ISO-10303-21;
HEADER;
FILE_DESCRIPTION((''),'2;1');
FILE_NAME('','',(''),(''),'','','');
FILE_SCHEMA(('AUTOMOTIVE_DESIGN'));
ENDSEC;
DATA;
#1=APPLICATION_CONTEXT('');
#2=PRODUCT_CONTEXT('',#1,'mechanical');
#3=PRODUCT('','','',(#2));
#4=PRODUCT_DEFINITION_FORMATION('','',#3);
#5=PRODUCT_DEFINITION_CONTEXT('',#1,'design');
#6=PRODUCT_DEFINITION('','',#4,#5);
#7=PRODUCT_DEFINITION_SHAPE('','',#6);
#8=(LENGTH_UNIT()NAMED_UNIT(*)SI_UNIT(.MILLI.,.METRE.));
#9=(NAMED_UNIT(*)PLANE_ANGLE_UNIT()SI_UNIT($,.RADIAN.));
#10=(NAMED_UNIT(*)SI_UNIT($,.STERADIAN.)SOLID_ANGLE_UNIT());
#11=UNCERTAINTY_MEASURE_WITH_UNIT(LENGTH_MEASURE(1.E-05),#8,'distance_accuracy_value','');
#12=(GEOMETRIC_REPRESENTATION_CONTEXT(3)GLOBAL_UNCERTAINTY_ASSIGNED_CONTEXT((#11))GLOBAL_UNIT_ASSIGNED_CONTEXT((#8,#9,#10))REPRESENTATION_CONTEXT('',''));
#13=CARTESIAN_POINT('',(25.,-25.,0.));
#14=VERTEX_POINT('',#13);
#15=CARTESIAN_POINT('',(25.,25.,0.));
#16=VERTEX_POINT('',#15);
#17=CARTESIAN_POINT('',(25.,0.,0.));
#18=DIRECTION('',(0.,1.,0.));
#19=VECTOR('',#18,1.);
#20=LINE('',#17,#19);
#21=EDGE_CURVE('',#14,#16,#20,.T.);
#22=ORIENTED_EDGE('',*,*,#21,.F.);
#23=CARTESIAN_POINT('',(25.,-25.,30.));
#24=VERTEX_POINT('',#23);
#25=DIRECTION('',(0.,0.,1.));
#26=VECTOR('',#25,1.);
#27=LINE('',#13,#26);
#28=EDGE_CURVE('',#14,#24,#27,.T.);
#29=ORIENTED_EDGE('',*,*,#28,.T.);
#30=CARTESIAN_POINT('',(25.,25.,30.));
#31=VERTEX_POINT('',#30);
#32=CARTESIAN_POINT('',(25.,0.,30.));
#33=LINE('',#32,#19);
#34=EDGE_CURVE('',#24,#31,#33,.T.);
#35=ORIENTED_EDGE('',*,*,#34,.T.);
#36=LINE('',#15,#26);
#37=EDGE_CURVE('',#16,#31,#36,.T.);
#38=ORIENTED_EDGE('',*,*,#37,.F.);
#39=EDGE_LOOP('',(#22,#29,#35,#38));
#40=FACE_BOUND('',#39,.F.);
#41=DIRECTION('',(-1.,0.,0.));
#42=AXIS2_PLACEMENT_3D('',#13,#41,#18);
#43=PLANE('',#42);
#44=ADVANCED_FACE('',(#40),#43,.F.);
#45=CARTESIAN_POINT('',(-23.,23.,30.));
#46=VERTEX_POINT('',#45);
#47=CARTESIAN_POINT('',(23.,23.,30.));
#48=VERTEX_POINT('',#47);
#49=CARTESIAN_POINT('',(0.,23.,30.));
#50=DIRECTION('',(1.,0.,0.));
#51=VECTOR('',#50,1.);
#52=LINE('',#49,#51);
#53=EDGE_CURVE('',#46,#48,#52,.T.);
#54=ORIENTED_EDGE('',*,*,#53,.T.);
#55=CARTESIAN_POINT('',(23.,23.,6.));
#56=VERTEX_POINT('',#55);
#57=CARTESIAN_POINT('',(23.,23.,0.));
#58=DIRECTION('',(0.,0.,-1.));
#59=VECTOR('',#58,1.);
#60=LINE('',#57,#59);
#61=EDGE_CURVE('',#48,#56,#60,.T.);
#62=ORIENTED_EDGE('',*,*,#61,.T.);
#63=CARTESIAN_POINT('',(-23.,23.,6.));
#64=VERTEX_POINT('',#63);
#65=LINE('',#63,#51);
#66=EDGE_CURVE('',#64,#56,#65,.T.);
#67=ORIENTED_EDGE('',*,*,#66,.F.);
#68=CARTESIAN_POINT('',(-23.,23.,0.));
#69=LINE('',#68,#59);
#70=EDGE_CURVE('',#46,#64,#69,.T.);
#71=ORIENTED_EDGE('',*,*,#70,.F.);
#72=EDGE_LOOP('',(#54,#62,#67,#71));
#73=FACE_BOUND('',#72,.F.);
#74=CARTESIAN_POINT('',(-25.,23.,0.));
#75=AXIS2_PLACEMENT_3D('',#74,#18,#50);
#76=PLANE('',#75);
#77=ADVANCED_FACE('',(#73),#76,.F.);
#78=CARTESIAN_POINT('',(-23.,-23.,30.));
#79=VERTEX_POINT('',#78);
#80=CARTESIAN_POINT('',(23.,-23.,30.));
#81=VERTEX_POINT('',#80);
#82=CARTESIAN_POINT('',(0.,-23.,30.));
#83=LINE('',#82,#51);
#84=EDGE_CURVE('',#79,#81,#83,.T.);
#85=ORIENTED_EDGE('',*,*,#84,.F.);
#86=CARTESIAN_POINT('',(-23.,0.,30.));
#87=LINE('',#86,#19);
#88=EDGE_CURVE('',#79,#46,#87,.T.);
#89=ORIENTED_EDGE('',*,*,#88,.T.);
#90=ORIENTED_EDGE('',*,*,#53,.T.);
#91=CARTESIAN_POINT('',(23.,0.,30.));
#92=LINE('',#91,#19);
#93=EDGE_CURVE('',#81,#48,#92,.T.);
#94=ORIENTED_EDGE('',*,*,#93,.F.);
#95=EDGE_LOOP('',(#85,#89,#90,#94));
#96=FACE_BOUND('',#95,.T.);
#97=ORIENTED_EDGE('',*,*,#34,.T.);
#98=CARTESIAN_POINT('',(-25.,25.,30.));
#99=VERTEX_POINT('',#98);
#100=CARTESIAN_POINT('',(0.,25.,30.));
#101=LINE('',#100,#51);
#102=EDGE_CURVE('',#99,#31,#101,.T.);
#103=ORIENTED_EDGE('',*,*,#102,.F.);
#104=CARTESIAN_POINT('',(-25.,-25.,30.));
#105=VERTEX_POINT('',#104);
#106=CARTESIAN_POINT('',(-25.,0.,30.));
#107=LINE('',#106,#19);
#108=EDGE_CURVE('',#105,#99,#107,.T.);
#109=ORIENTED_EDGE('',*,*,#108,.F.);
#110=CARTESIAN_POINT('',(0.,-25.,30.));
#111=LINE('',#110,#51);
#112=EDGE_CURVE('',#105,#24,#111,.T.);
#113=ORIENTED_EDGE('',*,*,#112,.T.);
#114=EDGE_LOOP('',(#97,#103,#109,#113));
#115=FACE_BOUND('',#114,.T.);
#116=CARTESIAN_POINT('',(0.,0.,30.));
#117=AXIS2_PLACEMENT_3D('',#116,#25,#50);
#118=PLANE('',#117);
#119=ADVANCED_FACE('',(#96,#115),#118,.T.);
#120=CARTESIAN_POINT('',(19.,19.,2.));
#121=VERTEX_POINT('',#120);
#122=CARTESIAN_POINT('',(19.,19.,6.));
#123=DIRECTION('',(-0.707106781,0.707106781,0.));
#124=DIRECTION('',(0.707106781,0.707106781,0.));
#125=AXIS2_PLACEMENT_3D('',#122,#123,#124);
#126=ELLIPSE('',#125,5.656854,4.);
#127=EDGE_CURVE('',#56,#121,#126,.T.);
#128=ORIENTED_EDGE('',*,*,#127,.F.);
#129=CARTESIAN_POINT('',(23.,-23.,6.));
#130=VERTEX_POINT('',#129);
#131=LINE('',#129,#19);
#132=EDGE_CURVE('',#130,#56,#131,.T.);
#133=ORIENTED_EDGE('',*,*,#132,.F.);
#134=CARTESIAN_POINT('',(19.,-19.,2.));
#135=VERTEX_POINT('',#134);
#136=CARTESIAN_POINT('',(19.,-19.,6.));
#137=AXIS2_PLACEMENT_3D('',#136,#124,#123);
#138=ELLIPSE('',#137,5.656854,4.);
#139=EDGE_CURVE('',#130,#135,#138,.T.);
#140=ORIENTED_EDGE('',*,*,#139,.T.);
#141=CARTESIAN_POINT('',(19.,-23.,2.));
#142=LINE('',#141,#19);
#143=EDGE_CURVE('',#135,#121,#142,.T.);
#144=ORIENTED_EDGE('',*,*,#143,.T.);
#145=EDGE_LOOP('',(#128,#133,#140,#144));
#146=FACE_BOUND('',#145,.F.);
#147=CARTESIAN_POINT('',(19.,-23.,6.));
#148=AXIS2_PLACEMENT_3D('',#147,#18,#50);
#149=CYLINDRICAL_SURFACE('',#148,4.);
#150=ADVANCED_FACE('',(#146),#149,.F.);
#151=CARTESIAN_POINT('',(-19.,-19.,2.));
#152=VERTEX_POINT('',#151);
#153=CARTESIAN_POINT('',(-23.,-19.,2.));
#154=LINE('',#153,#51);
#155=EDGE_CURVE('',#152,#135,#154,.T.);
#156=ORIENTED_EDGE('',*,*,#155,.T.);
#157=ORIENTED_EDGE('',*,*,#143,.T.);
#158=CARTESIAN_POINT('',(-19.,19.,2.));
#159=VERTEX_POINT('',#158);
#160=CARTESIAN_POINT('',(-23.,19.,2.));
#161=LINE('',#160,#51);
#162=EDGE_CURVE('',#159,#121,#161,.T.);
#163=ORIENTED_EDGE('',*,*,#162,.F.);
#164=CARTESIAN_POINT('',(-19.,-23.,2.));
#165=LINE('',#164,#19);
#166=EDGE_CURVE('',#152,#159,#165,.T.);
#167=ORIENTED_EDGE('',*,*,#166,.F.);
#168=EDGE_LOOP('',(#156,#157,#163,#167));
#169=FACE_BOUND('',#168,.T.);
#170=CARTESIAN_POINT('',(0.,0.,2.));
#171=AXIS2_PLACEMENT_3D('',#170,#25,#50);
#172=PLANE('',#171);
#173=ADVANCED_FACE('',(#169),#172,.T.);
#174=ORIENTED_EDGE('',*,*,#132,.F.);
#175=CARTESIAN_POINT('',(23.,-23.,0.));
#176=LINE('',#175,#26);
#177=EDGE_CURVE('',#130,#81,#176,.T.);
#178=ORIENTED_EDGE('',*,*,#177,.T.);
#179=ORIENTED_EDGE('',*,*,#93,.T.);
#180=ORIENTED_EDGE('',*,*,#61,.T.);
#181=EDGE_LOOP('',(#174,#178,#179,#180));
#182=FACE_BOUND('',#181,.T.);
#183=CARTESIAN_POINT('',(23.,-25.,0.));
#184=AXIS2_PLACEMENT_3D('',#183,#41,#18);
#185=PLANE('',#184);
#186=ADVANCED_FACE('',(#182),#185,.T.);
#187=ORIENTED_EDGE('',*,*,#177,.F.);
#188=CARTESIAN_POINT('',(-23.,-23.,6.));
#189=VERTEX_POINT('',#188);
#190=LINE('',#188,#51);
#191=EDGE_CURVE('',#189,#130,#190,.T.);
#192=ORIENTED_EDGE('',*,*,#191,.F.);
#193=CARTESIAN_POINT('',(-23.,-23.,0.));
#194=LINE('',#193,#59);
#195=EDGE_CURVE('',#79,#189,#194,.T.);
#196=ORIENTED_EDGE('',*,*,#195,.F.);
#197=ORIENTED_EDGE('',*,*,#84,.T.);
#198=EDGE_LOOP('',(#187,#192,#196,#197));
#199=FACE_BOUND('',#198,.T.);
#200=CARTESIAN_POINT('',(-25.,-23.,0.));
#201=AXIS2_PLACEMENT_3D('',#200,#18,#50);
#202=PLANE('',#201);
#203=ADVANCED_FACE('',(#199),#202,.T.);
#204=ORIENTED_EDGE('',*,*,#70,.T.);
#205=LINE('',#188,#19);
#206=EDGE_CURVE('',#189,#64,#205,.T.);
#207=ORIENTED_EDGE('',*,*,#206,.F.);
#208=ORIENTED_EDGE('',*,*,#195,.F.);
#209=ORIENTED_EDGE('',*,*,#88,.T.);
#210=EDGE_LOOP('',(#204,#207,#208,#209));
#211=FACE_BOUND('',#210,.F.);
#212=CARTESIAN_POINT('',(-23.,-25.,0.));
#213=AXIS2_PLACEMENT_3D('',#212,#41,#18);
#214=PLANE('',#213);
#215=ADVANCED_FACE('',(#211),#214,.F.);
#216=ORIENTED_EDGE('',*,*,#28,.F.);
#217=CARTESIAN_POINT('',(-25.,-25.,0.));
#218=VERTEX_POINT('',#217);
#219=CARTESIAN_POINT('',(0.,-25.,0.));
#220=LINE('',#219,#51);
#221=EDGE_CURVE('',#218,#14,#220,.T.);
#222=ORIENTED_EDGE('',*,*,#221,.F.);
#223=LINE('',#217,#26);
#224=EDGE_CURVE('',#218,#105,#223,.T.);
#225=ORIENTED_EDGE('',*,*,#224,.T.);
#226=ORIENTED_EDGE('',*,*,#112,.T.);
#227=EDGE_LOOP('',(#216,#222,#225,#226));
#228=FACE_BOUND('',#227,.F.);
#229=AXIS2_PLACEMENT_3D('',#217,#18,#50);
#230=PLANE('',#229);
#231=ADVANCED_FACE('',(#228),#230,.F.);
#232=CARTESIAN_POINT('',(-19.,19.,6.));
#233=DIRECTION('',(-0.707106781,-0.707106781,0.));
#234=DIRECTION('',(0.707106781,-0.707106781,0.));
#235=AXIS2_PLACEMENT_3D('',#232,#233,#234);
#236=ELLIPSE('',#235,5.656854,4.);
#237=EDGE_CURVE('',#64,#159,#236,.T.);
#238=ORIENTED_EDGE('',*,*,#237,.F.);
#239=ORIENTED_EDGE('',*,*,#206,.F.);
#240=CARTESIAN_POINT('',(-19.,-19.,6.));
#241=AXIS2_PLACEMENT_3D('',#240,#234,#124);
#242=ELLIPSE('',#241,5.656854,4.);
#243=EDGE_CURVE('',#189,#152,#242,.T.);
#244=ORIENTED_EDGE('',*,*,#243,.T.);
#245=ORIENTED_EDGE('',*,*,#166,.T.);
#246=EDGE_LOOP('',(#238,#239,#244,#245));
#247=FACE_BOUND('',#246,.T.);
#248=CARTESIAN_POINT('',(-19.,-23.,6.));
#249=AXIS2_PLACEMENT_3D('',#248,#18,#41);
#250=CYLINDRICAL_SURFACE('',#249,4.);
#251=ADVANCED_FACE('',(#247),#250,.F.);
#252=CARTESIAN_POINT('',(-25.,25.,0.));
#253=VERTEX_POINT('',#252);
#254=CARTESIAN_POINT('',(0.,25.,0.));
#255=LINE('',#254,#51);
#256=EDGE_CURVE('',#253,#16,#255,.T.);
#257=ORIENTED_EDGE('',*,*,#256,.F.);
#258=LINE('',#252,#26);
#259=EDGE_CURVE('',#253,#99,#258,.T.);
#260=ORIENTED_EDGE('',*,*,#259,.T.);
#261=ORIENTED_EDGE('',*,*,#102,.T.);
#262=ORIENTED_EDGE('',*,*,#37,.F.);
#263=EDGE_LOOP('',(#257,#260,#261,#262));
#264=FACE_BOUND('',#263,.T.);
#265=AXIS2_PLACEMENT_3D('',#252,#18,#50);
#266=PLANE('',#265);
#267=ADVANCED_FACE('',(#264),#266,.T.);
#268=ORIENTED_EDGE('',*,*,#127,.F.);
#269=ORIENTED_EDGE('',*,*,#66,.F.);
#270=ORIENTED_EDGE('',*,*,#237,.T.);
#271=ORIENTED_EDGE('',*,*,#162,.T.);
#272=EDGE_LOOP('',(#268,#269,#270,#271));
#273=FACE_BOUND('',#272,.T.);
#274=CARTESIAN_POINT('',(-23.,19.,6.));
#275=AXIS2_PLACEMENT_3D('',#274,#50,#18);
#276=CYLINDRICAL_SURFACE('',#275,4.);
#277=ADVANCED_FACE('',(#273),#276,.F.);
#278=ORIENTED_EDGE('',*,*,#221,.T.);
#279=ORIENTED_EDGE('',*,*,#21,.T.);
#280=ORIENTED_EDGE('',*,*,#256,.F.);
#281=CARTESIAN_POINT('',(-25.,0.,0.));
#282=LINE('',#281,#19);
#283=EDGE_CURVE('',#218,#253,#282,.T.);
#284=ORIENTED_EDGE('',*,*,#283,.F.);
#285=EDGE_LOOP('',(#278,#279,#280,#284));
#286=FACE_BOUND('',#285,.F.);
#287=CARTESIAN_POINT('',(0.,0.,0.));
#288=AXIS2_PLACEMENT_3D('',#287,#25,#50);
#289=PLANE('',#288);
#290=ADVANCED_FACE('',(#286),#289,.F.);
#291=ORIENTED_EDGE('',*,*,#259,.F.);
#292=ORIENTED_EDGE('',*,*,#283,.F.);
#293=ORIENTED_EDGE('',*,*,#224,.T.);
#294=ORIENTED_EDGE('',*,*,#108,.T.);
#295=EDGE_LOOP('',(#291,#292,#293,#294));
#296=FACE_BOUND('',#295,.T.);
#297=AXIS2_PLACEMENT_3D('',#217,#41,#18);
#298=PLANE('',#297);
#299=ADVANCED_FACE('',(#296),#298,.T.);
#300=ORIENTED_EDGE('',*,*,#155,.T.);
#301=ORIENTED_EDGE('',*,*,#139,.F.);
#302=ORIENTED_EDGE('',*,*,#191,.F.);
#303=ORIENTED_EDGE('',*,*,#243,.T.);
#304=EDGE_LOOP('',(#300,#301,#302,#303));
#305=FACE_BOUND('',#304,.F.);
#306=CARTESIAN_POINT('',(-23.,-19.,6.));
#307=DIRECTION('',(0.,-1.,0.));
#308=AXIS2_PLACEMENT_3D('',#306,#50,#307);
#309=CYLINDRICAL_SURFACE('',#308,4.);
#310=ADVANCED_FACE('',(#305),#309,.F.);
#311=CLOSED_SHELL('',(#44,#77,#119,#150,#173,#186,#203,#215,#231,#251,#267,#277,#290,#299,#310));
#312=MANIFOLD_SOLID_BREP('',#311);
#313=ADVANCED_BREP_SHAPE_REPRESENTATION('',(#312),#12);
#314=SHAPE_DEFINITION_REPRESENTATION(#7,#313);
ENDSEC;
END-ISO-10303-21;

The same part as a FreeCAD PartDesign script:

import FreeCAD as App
import Part
import Sketcher

V = App.Vector


def edges_at(feature, points):
    """Names of the edges that pass closest to the given points."""
    edges = feature.Shape.Edges
    near = lambda p: min(range(len(edges)), key=lambda i: edges[i].distToShape(Part.Vertex(*p))[0])
    return sorted({f"Edge{near(p) + 1}" for p in points})


def faces_at(feature, points):
    """Names of the faces that lie closest to the given points."""
    faces = feature.Shape.Faces
    near = lambda p: min(range(len(faces)), key=lambda i: faces[i].distToShape(Part.Vertex(*p))[0])
    return sorted({f"Face{near(p) + 1}" for p in points})

doc = App.newDocument("Part")
params = doc.addObject("Spreadsheet::Sheet", "Params")
for row, (alias, value) in enumerate([
    ("sketch1_width", "50 mm"),
    ("pad1_length", "30 mm"),
    ("thickness_wall", "2 mm"),
    ("fillet_radius", "4 mm"),
], start=1):
    params.set(f"A{row}", alias)
    params.set(f"B{row}", "=" + value)
    params.setAlias(f"B{row}", alias)

body = doc.addObject("PartDesign::Body", "Body")

# Sketch on XY plane
sketch1 = body.newObject("Sketcher::SketchObject", "Sketch")
sketch1.AttachmentSupport = (doc.getObject("XY_Plane"), [""])
sketch1.MapMode = "FlatFace"
sketch1.addGeometry([
    Part.LineSegment(V(-25, 25, 0), V(-25, -25, 0)),
    Part.LineSegment(V(-25, -25, 0), V(25, -25, 0)),
    Part.LineSegment(V(25, -25, 0), V(25, 25, 0)),
    Part.LineSegment(V(25, 25, 0), V(-25, 25, 0)),
], False)
sketch1.addConstraint([
    Sketcher.Constraint("Coincident", 0, 2, 1, 1),
    Sketcher.Constraint("Coincident", 1, 2, 2, 1),
    Sketcher.Constraint("Coincident", 2, 2, 3, 1),
    Sketcher.Constraint("Coincident", 3, 2, 0, 1),
    Sketcher.Constraint("Vertical", 0),
    Sketcher.Constraint("Horizontal", 1),
    Sketcher.Constraint("Vertical", 2),
    Sketcher.Constraint("Horizontal", 3),
    Sketcher.Constraint("Symmetric", 0, 2, 2, 2, -1, 1),
    Sketcher.Constraint("Equal", 3, 0),
    Sketcher.Constraint("DistanceX", 1, 1, 1, 2, 50.0),
])
sketch1.setExpression("Constraints[10]", "Params.sketch1_width")
pad1 = body.newObject("PartDesign::Pad", "Pad")
pad1.Profile = sketch1
pad1.setExpression("Length", "Params.pad1_length")
doc.recompute()

thickness = body.newObject("PartDesign::Thickness", "Thickness")
thickness.Base = (pad1, faces_at(pad1, [(0, 0, 30)]))
thickness.setExpression("Value", "Params.thickness_wall")
thickness.Reversed = True
thickness.Join = "Arc"
doc.recompute()

fillet = body.newObject("PartDesign::Fillet", "Fillet")
fillet.Base = (thickness, edges_at(thickness, [
    (0, 23, 2),
    (-23, 0, 2),
    (23, 0, 2),
    (0, -23, 2),
]))
fillet.setExpression("Radius", "Params.fillet_radius")

doc.recompute()
